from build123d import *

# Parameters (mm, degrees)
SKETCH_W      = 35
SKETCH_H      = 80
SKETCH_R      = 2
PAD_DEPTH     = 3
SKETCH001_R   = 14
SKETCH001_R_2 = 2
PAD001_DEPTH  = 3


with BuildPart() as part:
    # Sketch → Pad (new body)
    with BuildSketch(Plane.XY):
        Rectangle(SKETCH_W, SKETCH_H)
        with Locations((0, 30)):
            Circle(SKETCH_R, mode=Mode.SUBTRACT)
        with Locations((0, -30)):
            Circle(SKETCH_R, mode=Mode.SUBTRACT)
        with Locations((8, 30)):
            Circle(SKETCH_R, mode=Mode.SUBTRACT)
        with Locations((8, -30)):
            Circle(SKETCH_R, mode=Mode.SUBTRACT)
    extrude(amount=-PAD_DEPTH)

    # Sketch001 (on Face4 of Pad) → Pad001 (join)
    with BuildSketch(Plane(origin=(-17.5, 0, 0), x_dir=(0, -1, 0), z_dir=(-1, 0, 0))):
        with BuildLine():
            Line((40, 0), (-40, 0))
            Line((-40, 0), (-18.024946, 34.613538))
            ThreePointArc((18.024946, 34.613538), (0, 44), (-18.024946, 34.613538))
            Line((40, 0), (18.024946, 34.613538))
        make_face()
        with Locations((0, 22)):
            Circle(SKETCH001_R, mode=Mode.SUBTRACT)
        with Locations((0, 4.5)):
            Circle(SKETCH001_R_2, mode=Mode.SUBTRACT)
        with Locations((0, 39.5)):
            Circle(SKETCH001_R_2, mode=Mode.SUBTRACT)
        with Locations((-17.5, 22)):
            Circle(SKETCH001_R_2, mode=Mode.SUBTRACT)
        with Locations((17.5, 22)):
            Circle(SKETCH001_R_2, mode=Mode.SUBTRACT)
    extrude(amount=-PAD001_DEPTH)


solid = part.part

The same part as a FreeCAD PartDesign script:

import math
import FreeCAD as App
import Part
import Sketcher

V = App.Vector

doc = App.newDocument("Part")
body = doc.addObject("PartDesign::Body", "Body")

sketch1 = body.newObject("Sketcher::SketchObject", "Sketch")
sketch1.AttachmentSupport = (doc.getObject("XY_Plane"), [""])
sketch1.MapMode = "FlatFace"
sketch1.addGeometry([
    Part.LineSegment(V(-17.5, 40, 0), V(-17.5, -40, 0)),
    Part.LineSegment(V(-17.5, -40, 0), V(17.5, -40, 0)),
    Part.LineSegment(V(17.5, -40, 0), V(17.5, 40, 0)),
    Part.LineSegment(V(17.5, 40, 0), V(-17.5, 40, 0)),
    Part.Circle(V(0, -30, 0), V(0, 0, 1), 2),
    Part.Circle(V(8, -30, 0), V(0, 0, 1), 2),
    Part.Circle(V(0, 30, 0), V(0, 0, 1), 2),
    Part.Circle(V(8, 30, 0), V(0, 0, 1), 2),
], False)
sketch1.addConstraint([
    Sketcher.Constraint("Coincident", 0, 2, 1, 1),
    Sketcher.Constraint("Coincident", 1, 2, 2, 1),
    Sketcher.Constraint("Coincident", 2, 2, 3, 1),
    Sketcher.Constraint("Coincident", 3, 2, 0, 1),
    Sketcher.Constraint("Vertical", 0),
    Sketcher.Constraint("Horizontal", 1),
    Sketcher.Constraint("Vertical", 2),
    Sketcher.Constraint("Horizontal", 3),
    Sketcher.Constraint("Equal", 4, 5),
    Sketcher.Constraint("Equal", 5, 6),
    Sketcher.Constraint("Equal", 6, 7),
    Sketcher.Constraint("Symmetric", 4, 3, 6, 3, -1, 1),
    Sketcher.Constraint("Symmetric", 0, 2, 2, 2, -1, 1),
    Sketcher.Constraint("Symmetric", 5, 3, 7, 3, -1),
    Sketcher.Constraint("PointOnObject", 4, 3, -2),
    Sketcher.Constraint("Horizontal", 4, 3, 5, 3),
    Sketcher.Constraint("Diameter", 4, 4.0),
    Sketcher.Constraint("DistanceX", 1, 1, 1, 2, 35.0),
    Sketcher.Constraint("DistanceY", 0, 2, 0, 1, 80.0),
    Sketcher.Constraint("DistanceY", 4, 3, -1, 1, 30.0),
    Sketcher.Constraint("DistanceX", -1, 1, 5, 3, 8.0),
])
pad1 = body.newObject("PartDesign::Pad", "Pad")
pad1.Profile = sketch1
pad1.Length = 3
pad1.Reversed = True

sketch2 = body.newObject("Sketcher::SketchObject", "Sketch001")
sketch2.AttachmentSupport = (doc.getObject("YZ_Plane"), [""])
sketch2.MapMode = "FlatFace"
sketch2.AttachmentOffset = App.Placement(V(0, 0, -17.5), App.Rotation())
sketch2.addGeometry([
    Part.LineSegment(V(40, 0, 0), V(-40, 0, 0)),
    Part.LineSegment(V(-40, 0, 0), V(-18.024946, 34.613538, 0)),
    Part.ArcOfCircle(Part.Circle(V(0, 21.999999, 0), V(0, 0, 1), 22.000001), math.radians(34.98365), math.radians(145.01635)),
    Part.LineSegment(V(18.024946, 34.613538, 0), V(40, 0, 0)),
    Part.Circle(V(0, 4.5, 0), V(0, 0, 1), 2),
    Part.Circle(V(-17.5, 22, 0), V(0, 0, 1), 2),
    Part.Circle(V(0, 22, 0), V(0, 0, 1), 14),
    Part.Circle(V(17.5, 22, 0), V(0, 0, 1), 2),
    Part.Circle(V(0, 39.5, 0), V(0, 0, 1), 2),
], False)
sketch2.addConstraint([
    Sketcher.Constraint("Coincident", 0, 2, 1, 1),
    Sketcher.Constraint("Coincident", 1, 2, 2, 2),
    Sketcher.Constraint("Coincident", 2, 1, 3, 1),
    Sketcher.Constraint("Coincident", 3, 2, 0, 1),
    Sketcher.Constraint("Horizontal", 0),
    Sketcher.Constraint("Coincident", 6, 3, 2, 3),
    Sketcher.Constraint("Equal", 4, 5),
    Sketcher.Constraint("Equal", 5, 7),
    Sketcher.Constraint("Equal", 7, 8),
    Sketcher.Constraint("Symmetric", 0, 2, 3, 2, -1, 1),
    Sketcher.Constraint("Symmetric", 5, 3, 7, 3, -2),
    Sketcher.Constraint("Symmetric", 1, 2, 2, 1, -2),
    Sketcher.Constraint("PointOnObject", 4, 3, -2),
    Sketcher.Constraint("PointOnObject", 8, 3, -2),
    Sketcher.Constraint("Horizontal", 2, 3, 5, 3),
    Sketcher.Constraint("Diameter", 4, 4.0),
    Sketcher.Constraint("Diameter", 6, 28.0),
    Sketcher.Constraint("Radius", 2, 22.000001),
    Sketcher.Constraint("DistanceX", 0, 2, 0, 1, 80.0),
    Sketcher.Constraint("Distance", 1, 41.0),
    Sketcher.Constraint("DistanceY", -1, 1, 2, 3, 21.999999),
    Sketcher.Constraint("DistanceX", 5, 3, 7, 3, 35.0),
    Sketcher.Constraint("DistanceY", 4, 3, 8, 3, 35.0),
    Sketcher.Constraint("DistanceY", -1, 1, 4, 3, 4.5),
])
pad2 = body.newObject("PartDesign::Pad", "Pad001")
pad2.Profile = sketch2
pad2.Length = 3

doc.recompute()
